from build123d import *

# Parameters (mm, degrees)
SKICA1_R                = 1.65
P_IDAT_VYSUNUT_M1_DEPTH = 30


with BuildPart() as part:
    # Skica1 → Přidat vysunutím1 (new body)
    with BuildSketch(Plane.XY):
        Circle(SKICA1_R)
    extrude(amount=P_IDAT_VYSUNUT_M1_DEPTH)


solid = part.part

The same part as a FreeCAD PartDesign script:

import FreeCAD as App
import Part
import Sketcher
from FreeCAD import Vector

doc = App.newDocument("Part")
body = doc.addObject("PartDesign::Body", "Body")

sketch1 = doc.addObject("Sketcher::SketchObject", "Sketch")
body.addObject(sketch1)
sketch1.AttachmentSupport = (doc.XY_Plane, [""])
sketch1.MapMode = "FlatFace"
sketch1.addGeometry(Part.Circle(Vector(0, 0, 0), Vector(0, 0, 1), 1.6), False)
sketch1.addConstraint([
    Sketcher.Constraint("Coincident", 0, 3, -1, 1),
    Sketcher.Constraint("Diameter", 0, 3.3),
])
pad1 = doc.addObject("PartDesign::Pad", "Pad")
body.addObject(pad1)
pad1.Profile = sketch1
pad1.Length = 30

doc.recompute()
